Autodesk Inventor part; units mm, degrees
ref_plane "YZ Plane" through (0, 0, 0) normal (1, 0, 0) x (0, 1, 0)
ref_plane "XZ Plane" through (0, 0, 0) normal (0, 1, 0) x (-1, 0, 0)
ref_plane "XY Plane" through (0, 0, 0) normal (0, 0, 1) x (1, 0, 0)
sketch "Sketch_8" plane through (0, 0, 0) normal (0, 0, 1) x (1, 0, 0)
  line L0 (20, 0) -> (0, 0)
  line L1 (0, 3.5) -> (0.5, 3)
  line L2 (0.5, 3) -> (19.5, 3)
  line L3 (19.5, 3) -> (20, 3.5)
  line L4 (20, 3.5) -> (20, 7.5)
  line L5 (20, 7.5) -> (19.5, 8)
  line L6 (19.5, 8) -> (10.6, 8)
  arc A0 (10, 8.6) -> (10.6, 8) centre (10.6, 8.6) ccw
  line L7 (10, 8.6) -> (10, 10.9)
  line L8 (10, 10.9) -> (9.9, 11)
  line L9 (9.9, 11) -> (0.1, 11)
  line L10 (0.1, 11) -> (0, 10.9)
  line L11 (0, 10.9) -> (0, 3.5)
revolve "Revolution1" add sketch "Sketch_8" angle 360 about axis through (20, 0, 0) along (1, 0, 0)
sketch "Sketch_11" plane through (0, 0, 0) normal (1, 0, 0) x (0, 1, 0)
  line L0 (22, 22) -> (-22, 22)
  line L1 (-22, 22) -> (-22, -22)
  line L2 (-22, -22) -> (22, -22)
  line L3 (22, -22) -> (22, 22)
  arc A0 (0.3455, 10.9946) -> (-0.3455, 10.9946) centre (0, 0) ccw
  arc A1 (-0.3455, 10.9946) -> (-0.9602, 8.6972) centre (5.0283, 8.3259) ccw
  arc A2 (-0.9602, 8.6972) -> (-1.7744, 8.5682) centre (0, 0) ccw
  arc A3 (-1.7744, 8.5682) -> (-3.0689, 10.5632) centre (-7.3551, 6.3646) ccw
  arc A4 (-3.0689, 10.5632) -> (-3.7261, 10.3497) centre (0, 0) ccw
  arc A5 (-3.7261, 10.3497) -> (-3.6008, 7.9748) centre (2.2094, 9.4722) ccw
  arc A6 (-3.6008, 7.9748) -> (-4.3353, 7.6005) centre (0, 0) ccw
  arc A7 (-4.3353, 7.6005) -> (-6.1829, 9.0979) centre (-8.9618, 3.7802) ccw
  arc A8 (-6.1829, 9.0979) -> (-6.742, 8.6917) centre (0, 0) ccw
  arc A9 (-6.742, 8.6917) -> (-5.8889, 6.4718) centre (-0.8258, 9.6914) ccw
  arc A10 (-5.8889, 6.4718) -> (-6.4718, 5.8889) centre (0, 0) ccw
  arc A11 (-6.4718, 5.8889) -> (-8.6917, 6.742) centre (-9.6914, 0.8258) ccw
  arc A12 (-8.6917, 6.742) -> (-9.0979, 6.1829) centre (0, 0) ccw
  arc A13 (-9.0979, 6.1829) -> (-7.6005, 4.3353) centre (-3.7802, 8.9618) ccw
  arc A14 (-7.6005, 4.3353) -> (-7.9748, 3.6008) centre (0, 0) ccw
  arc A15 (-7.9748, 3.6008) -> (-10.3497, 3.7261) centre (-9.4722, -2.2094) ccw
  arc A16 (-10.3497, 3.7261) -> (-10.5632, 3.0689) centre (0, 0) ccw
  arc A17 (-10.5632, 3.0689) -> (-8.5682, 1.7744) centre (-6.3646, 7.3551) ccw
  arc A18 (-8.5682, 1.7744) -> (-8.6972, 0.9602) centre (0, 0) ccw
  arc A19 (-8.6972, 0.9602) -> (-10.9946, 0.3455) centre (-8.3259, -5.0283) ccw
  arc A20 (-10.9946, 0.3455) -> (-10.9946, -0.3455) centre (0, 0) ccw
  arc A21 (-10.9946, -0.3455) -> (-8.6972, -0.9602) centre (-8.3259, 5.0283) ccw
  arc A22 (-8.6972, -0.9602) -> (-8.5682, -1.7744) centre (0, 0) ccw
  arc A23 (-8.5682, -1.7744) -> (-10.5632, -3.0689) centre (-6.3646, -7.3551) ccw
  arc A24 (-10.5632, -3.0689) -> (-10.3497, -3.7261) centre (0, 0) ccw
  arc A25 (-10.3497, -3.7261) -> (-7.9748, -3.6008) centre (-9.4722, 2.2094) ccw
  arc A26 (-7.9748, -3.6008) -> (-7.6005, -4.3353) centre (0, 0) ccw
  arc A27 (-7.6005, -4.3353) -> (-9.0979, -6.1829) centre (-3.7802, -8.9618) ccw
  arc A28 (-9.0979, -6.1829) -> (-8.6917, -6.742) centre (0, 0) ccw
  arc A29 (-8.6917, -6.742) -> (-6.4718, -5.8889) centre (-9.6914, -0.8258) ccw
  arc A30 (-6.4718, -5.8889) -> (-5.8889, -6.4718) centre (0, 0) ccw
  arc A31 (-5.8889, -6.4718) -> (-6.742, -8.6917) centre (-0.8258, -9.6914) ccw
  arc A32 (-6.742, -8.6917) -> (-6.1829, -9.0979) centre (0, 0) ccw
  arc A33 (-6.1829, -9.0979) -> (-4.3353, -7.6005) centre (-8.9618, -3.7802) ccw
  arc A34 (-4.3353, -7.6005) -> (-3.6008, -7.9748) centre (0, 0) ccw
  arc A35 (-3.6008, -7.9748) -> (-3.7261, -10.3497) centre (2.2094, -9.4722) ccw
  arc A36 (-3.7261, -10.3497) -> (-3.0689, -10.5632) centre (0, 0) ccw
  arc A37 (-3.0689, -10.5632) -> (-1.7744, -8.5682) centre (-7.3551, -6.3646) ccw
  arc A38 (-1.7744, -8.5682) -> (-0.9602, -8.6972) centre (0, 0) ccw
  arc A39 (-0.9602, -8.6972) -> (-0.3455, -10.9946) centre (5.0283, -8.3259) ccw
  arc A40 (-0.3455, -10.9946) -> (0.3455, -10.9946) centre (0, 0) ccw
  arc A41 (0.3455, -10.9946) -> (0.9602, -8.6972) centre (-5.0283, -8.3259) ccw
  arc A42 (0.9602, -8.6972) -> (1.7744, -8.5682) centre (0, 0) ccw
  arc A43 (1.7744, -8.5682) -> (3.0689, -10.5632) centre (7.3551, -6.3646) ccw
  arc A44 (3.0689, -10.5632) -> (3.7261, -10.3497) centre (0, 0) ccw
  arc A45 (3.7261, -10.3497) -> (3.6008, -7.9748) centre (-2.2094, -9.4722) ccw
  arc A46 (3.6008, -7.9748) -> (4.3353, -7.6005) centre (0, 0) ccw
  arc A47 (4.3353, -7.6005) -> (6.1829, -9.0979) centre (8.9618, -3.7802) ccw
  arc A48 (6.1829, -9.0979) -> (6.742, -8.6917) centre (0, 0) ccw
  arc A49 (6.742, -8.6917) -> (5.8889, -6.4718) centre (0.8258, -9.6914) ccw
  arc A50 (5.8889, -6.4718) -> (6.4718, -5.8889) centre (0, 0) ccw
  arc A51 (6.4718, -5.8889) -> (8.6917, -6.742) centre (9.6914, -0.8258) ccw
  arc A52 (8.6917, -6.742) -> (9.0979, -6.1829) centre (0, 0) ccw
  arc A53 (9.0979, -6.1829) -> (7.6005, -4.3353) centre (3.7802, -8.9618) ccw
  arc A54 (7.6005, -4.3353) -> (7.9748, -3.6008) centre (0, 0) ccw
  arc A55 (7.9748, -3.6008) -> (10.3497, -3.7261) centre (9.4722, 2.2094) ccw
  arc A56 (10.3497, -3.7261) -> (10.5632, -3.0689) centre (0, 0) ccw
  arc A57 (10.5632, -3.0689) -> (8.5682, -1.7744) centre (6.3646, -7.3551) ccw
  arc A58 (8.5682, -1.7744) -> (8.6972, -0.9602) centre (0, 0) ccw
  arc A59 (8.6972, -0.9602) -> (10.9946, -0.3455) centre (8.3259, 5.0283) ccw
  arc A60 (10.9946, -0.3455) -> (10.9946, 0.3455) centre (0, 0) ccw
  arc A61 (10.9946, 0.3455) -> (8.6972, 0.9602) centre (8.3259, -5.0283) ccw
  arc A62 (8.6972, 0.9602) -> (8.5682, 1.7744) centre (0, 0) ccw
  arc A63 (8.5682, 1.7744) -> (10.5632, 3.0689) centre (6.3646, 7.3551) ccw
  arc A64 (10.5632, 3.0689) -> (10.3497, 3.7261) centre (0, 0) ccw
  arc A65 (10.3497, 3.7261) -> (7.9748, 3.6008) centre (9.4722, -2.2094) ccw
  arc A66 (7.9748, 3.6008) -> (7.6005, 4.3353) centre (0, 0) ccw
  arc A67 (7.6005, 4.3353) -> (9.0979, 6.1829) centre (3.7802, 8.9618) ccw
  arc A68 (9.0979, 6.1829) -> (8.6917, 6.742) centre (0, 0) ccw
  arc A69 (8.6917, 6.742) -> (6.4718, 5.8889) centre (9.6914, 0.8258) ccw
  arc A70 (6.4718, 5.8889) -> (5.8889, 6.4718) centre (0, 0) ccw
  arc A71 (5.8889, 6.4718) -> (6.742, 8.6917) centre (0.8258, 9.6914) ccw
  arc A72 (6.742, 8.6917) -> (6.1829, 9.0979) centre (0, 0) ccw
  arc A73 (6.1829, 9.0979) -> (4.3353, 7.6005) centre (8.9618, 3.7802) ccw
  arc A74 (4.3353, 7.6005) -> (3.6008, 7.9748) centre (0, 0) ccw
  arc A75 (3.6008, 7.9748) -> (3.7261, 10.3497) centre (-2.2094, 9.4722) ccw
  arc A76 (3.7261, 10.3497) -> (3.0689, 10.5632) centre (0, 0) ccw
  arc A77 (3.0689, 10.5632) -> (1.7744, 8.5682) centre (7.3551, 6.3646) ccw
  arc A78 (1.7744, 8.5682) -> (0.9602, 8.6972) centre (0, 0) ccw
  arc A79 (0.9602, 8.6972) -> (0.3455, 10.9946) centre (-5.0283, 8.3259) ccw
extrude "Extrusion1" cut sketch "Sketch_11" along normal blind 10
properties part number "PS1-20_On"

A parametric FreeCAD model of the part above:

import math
import FreeCAD as App
import Part
import Sketcher

doc = App.newDocument("Part")
body = doc.addObject("PartDesign::Body", "Body")

# Sketch on XY plane
sketch1 = body.newObject("Sketcher::SketchObject", "Sketch")
sketch1.AttachmentSupport = (doc.getObject("XY_Plane"), [""])
sketch1.MapMode = "FlatFace"
sketch1.addGeometry([
    Part.LineSegment(App.Vector(0, 10.9, 0), App.Vector(0, 3.5, 0)),  # 0
    Part.LineSegment(App.Vector(0, 3.5, 0), App.Vector(0.5, 3, 0)),  # 1
    Part.LineSegment(App.Vector(0.5, 3, 0), App.Vector(19.5, 3, 0)),  # 2
    Part.LineSegment(App.Vector(19.5, 3, 0), App.Vector(20, 3.5, 0)),  # 3
    Part.LineSegment(App.Vector(20, 3.5, 0), App.Vector(20, 7.5, 0)),  # 4
    Part.LineSegment(App.Vector(20, 7.5, 0), App.Vector(19.5, 8, 0)),  # 5
    Part.LineSegment(App.Vector(19.5, 8, 0), App.Vector(10.6, 8, 0)),  # 6
    Part.ArcOfCircle(Part.Circle(App.Vector(10.6, 8.6, 0), App.Vector(0, 0, 1), 0.6), math.radians(180), math.radians(270)),  # 7
    Part.LineSegment(App.Vector(10, 8.6, 0), App.Vector(10, 10.9, 0)),  # 8
    Part.LineSegment(App.Vector(10, 10.9, 0), App.Vector(9.9, 11, 0)),  # 9
    Part.LineSegment(App.Vector(9.9, 11, 0), App.Vector(0.1, 11, 0)),  # 10
    Part.LineSegment(App.Vector(0.1, 11, 0), App.Vector(0, 10.9, 0)),  # 11
], False)
sketch1.addConstraint([
    Sketcher.Constraint("Coincident", 0, 2, 1, 1),
    Sketcher.Constraint("Coincident", 1, 2, 2, 1),
    Sketcher.Constraint("Coincident", 2, 2, 3, 1),
    Sketcher.Constraint("Coincident", 3, 2, 4, 1),
    Sketcher.Constraint("Coincident", 4, 2, 5, 1),
    Sketcher.Constraint("Coincident", 5, 2, 6, 1),
    Sketcher.Constraint("Tangent", 6, 2, 7, 2),
    Sketcher.Constraint("Tangent", 7, 1, 8, 1),
    Sketcher.Constraint("Coincident", 8, 2, 9, 1),
    Sketcher.Constraint("Coincident", 9, 2, 10, 1),
    Sketcher.Constraint("Coincident", 10, 2, 11, 1),
    Sketcher.Constraint("Coincident", 11, 2, 0, 1),
    Sketcher.Constraint("Vertical", 0),
    Sketcher.Constraint("Horizontal", 2),
    Sketcher.Constraint("Vertical", 4),
    Sketcher.Constraint("Horizontal", 6),
    Sketcher.Constraint("Vertical", 8),
    Sketcher.Constraint("Horizontal", 10),
    Sketcher.Constraint("PointOnObject", 0, 2, -2),
    Sketcher.Constraint("Perpendicular", 1, 3),
    Sketcher.Constraint("Perpendicular", 3, 5),
    Sketcher.Constraint("Parallel", 5, 9),
    Sketcher.Constraint("Perpendicular", 9, 11),
    Sketcher.Constraint("Horizontal", 0, 2, 3, 2),
    Sketcher.Constraint("Horizontal", 8, 2, 11, 2),
    Sketcher.Constraint("Vertical", 2, 2, 5, 2),
    Sketcher.Constraint("Equal", 1, 3),
    Sketcher.Constraint("Radius", 7, 0.6),
    Sketcher.Constraint("DistanceX", 2, 1, 2, 2, 19.0),
    Sketcher.Constraint("DistanceY", 4, 1, 4, 2, 4.0),
    Sketcher.Constraint("DistanceX", 6, 2, 6, 1, 8.9),
    Sketcher.Constraint("DistanceX", 10, 2, 10, 1, 9.8),
    Sketcher.Constraint("DistanceY", 0, 2, 0, 1, 7.4),
    Sketcher.Constraint("DistanceY", 8, 1, 8, 2, 2.3),
    Sketcher.Constraint("DistanceY", -1, 1, 1, 2, 3.0),
])
revolution = body.newObject("PartDesign::Revolution", "Revolution")
revolution.Profile = sketch1
revolution.ReferenceAxis = (sketch1, ["H_Axis"])
revolution.Angle = 360

# Sketch on YZ plane
sketch2 = body.newObject("Sketcher::SketchObject", "Sketch001")
sketch2.AttachmentSupport = (doc.getObject("YZ_Plane"), [""])
sketch2.MapMode = "FlatFace"
sketch2.addGeometry([
    Part.LineSegment(App.Vector(22, -22, 0), App.Vector(22, 22, 0)),  # 0
    Part.LineSegment(App.Vector(22, 22, 0), App.Vector(-22, 22, 0)),  # 1
    Part.LineSegment(App.Vector(-22, 22, 0), App.Vector(-22, -22, 0)),  # 2
    Part.LineSegment(App.Vector(-22, -22, 0), App.Vector(22, -22, 0)),  # 3
    Part.ArcOfCircle(Part.Circle(App.Vector(0, 0, 0), App.Vector(0, 0, 1), 11.000027), math.radians(88.2001), math.radians(91.7999)),  # 4
    Part.ArcOfCircle(Part.Circle(App.Vector(-5.0283, 8.3259, 0), App.Vector(0, 0, 1), 6), math.radians(3.547921), math.radians(26.409601)),  # 5
    Part.ArcOfCircle(Part.Circle(App.Vector(-0.003362, -0.018408, 0), App.Vector(0, 0, 1), 8.76871), math.radians(78.302809), math.radians(83.691233)),  # 6
    Part.ArcOfCircle(Part.Circle(App.Vector(7.3551, 6.3646, 0), App.Vector(0, 0, 1), 5.999979), math.radians(135.59152), math.radians(158.452877)),  # 7
    Part.ArcOfCircle(Part.Circle(App.Vector(0.011451, 0.033446, 0), App.Vector(0, 0, 1), 10.964658), math.radians(70.197203), math.radians(73.808668)),  # 8
    Part.ArcOfCircle(Part.Circle(App.Vector(-2.2094, 9.4722, 0), App.Vector(0, 0, 1), 6.000053), math.radians(-14.451742), math.radians(8.409651)),  # 9
    Part.ArcOfCircle(Part.Circle(App.Vector(-0.009426, -0.01747, 0), App.Vector(0, 0, 1), 8.769841), math.radians(60.302763), math.radians(65.690603)),  # 10
    Part.ArcOfCircle(Part.Circle(App.Vector(8.960613, 3.782006, 0), App.Vector(0, 0, 1), 5.997868), math.radians(117.588412), math.radians(140.458135)),  # 11
    Part.ArcOfCircle(Part.Circle(App.Vector(0.004866, 0.00648, 0), App.Vector(0, 0, 1), 10.991907), math.radians(52.199228), math.radians(55.802104)),  # 12
    Part.ArcOfCircle(Part.Circle(App.Vector(0.8258, 9.6914, 0), App.Vector(0, 0, 1), 6.000067), math.radians(-32.452077), math.radians(-9.591052)),  # 13
    Part.ArcOfCircle(Part.Circle(App.Vector(0, 0, 0), App.Vector(0, 0, 1), 8.750048), math.radians(42.300073), math.radians(47.699927)),  # 14
    Part.ArcOfCircle(Part.Circle(App.Vector(9.6914, 0.8258, 0), App.Vector(0, 0, 1), 6.000069), math.radians(99.591052), math.radians(122.452077)),  # 15
    Part.ArcOfCircle(Part.Circle(App.Vector(-0.00664, -0.004666, 0), App.Vector(0, 0, 1), 11.008116), math.radians(34.20055), math.radians(37.798119)),  # 16
    Part.ArcOfCircle(Part.Circle(App.Vector(3.778664, 8.963322, 0), App.Vector(0, 0, 1), 6.002085), math.radians(-50.449991), math.radians(-27.596555)),  # 17
    Part.ArcOfCircle(Part.Circle(App.Vector(0.017814, 0.008554, 0), App.Vector(0, 0, 1), 8.730284), math.radians(24.297182), math.radians(29.709452)),  # 18
    Part.ArcOfCircle(Part.Circle(App.Vector(9.4722, -2.2094, 0), App.Vector(0, 0, 1), 6.000014), math.radians(81.590349), math.radians(104.451742)),  # 19
    Part.ArcOfCircle(Part.Circle(App.Vector(-0.034007, -0.010462, 0), App.Vector(0, 0, 1), 11.035546), math.radians(16.202935), math.radians(19.791194)),  # 20
    Part.ArcOfCircle(Part.Circle(App.Vector(6.3646, 7.3551, 0), App.Vector(0, 0, 1), 6.000005), math.radians(-68.452877), math.radians(-45.59152)),  # 21
    Part.ArcOfCircle(Part.Circle(App.Vector(0.018467, 0.00248, 0), App.Vector(0, 0, 1), 8.731417), math.radians(6.297251), math.radians(11.708706)),  # 22
    Part.ArcOfCircle(Part.Circle(App.Vector(8.3259, -5.0283, 0), App.Vector(0, 0, 1), 5.999974), math.radians(63.590399), math.radians(86.452079)),  # 23
    Part.ArcOfCircle(Part.Circle(App.Vector(0, 0, 0), App.Vector(0, 0, 1), 11.000027), math.radians(-1.7999), math.radians(1.7999)),  # 24
    Part.ArcOfCircle(Part.Circle(App.Vector(8.3259, 5.0283, 0), App.Vector(0, 0, 1), 6), math.radians(-86.452079), math.radians(-63.590399)),  # 25
    Part.ArcOfCircle(Part.Circle(App.Vector(-0.018408, 0.003362, 0), App.Vector(0, 0, 1), 8.76871), math.radians(-11.697191), math.radians(-6.308767)),  # 26
    Part.ArcOfCircle(Part.Circle(App.Vector(6.3646, -7.3551, 0), App.Vector(0, 0, 1), 5.999979), math.radians(45.59152), math.radians(68.452877)),  # 27
    Part.ArcOfCircle(Part.Circle(App.Vector(0.033446, -0.011451, 0), App.Vector(0, 0, 1), 10.964658), math.radians(-19.802797), math.radians(-16.191332)),  # 28
    Part.ArcOfCircle(Part.Circle(App.Vector(9.4722, 2.2094, 0), App.Vector(0, 0, 1), 6.000053), math.radians(-104.451742), math.radians(-81.590349)),  # 29
    Part.ArcOfCircle(Part.Circle(App.Vector(-0.01747, 0.009426, 0), App.Vector(0, 0, 1), 8.769841), math.radians(-29.697237), math.radians(-24.309397)),  # 30
    Part.ArcOfCircle(Part.Circle(App.Vector(3.782006, -8.960613, 0), App.Vector(0, 0, 1), 5.997868), math.radians(27.588412), math.radians(50.458135)),  # 31
    Part.ArcOfCircle(Part.Circle(App.Vector(0.00648, -0.004866, 0), App.Vector(0, 0, 1), 10.991907), math.radians(-37.800772), math.radians(-34.197896)),  # 32
    Part.ArcOfCircle(Part.Circle(App.Vector(9.6914, -0.8258, 0), App.Vector(0, 0, 1), 6.000067), math.radians(-122.452077), math.radians(-99.591052)),  # 33
    Part.ArcOfCircle(Part.Circle(App.Vector(0, 0, 0), App.Vector(0, 0, 1), 8.750048), math.radians(-47.699927), math.radians(-42.300073)),  # 34
    Part.ArcOfCircle(Part.Circle(App.Vector(0.8258, -9.6914, 0), App.Vector(0, 0, 1), 6.000069), math.radians(9.591052), math.radians(32.452077)),  # 35
    Part.ArcOfCircle(Part.Circle(App.Vector(-0.004666, 0.00664, 0), App.Vector(0, 0, 1), 11.008116), math.radians(-55.79945), math.radians(-52.201881)),  # 36
    Part.ArcOfCircle(Part.Circle(App.Vector(8.963322, -3.778664, 0), App.Vector(0, 0, 1), 6.002085), math.radians(-140.449991), math.radians(-117.596555)),  # 37
    Part.ArcOfCircle(Part.Circle(App.Vector(0.008554, -0.017814, 0), App.Vector(0, 0, 1), 8.730284), math.radians(-65.702818), math.radians(-60.290548)),  # 38
    Part.ArcOfCircle(Part.Circle(App.Vector(-2.2094, -9.4722, 0), App.Vector(0, 0, 1), 6.000014), math.radians(-8.409651), math.radians(14.451742)),  # 39
    Part.ArcOfCircle(Part.Circle(App.Vector(-0.010462, 0.034007, 0), App.Vector(0, 0, 1), 11.035546), math.radians(-73.797065), math.radians(-70.208806)),  # 40
    Part.ArcOfCircle(Part.Circle(App.Vector(7.3551, -6.3646, 0), App.Vector(0, 0, 1), 6.000005), math.radians(-158.452877), math.radians(-135.59152)),  # 41
    Part.ArcOfCircle(Part.Circle(App.Vector(0.00248, -0.018467, 0), App.Vector(0, 0, 1), 8.731417), math.radians(-83.702749), math.radians(-78.291294)),  # 42
    Part.ArcOfCircle(Part.Circle(App.Vector(-5.0283, -8.3259, 0), App.Vector(0, 0, 1), 5.999974), math.radians(-26.409601), math.radians(-3.547921)),  # 43
    Part.ArcOfCircle(Part.Circle(App.Vector(0, 0, 0), App.Vector(0, 0, 1), 11.000027), math.radians(-91.7999), math.radians(-88.2001)),  # 44
    Part.ArcOfCircle(Part.Circle(App.Vector(5.0283, -8.3259, 0), App.Vector(0, 0, 1), 6), math.radians(-176.452079), math.radians(-153.590399)),  # 45
    Part.ArcOfCircle(Part.Circle(App.Vector(0.003362, 0.018408, 0), App.Vector(0, 0, 1), 8.76871), math.radians(-101.697191), math.radians(-96.308767)),  # 46
    Part.ArcOfCircle(Part.Circle(App.Vector(-7.3551, -6.3646, 0), App.Vector(0, 0, 1), 5.999979), math.radians(-44.40848), math.radians(-21.547123)),  # 47
    Part.ArcOfCircle(Part.Circle(App.Vector(-0.011451, -0.033446, 0), App.Vector(0, 0, 1), 10.964658), math.radians(-109.802797), math.radians(-106.191332)),  # 48
    Part.ArcOfCircle(Part.Circle(App.Vector(2.2094, -9.4722, 0), App.Vector(0, 0, 1), 6.000053), math.radians(165.548258), math.radians(188.409651)),  # 49
    Part.ArcOfCircle(Part.Circle(App.Vector(0.009426, 0.01747, 0), App.Vector(0, 0, 1), 8.769841), math.radians(-119.697237), math.radians(-114.309397)),  # 50
    Part.ArcOfCircle(Part.Circle(App.Vector(-8.960613, -3.782006, 0), App.Vector(0, 0, 1), 5.997868), math.radians(-62.411588), math.radians(-39.541865)),  # 51
    Part.ArcOfCircle(Part.Circle(App.Vector(-0.004866, -0.00648, 0), App.Vector(0, 0, 1), 10.991907), math.radians(-127.800772), math.radians(-124.197896)),  # 52
    Part.ArcOfCircle(Part.Circle(App.Vector(-0.8258, -9.6914, 0), App.Vector(0, 0, 1), 6.000067), math.radians(147.547923), math.radians(170.408948)),  # 53
    Part.ArcOfCircle(Part.Circle(App.Vector(0, 0, 0), App.Vector(0, 0, 1), 8.750048), math.radians(-137.699927), math.radians(-132.300073)),  # 54
    Part.ArcOfCircle(Part.Circle(App.Vector(-9.6914, -0.8258, 0), App.Vector(0, 0, 1), 6.000069), math.radians(-80.408948), math.radians(-57.547923)),  # 55
    Part.ArcOfCircle(Part.Circle(App.Vector(0.00664, 0.004666, 0), App.Vector(0, 0, 1), 11.008116), math.radians(-145.79945), math.radians(-142.201881)),  # 56
    Part.ArcOfCircle(Part.Circle(App.Vector(-3.778664, -8.963322, 0), App.Vector(0, 0, 1), 6.002085), math.radians(129.550009), math.radians(152.403445)),  # 57
    Part.ArcOfCircle(Part.Circle(App.Vector(-0.017814, -0.008554, 0), App.Vector(0, 0, 1), 8.730284), math.radians(-155.702818), math.radians(-150.290548)),  # 58
    Part.ArcOfCircle(Part.Circle(App.Vector(-9.4722, 2.2094, 0), App.Vector(0, 0, 1), 6.000014), math.radians(-98.409651), math.radians(-75.548258)),  # 59
    Part.ArcOfCircle(Part.Circle(App.Vector(0.034007, 0.010462, 0), App.Vector(0, 0, 1), 11.035546), math.radians(-163.797065), math.radians(-160.208806)),  # 60
    Part.ArcOfCircle(Part.Circle(App.Vector(-6.3646, -7.3551, 0), App.Vector(0, 0, 1), 6.000005), math.radians(111.547123), math.radians(134.40848)),  # 61
    Part.ArcOfCircle(Part.Circle(App.Vector(-0.018467, -0.00248, 0), App.Vector(0, 0, 1), 8.731417), math.radians(-173.702749), math.radians(-168.291294)),  # 62
    Part.ArcOfCircle(Part.Circle(App.Vector(-8.3259, 5.0283, 0), App.Vector(0, 0, 1), 5.999974), math.radians(-116.409601), math.radians(-93.547921)),  # 63
    Part.ArcOfCircle(Part.Circle(App.Vector(0, 0, 0), App.Vector(0, 0, 1), 11.000027), math.radians(178.2001), math.radians(181.7999)),  # 64
    Part.ArcOfCircle(Part.Circle(App.Vector(-8.3259, -5.0283, 0), App.Vector(0, 0, 1), 6), math.radians(93.547921), math.radians(116.409601)),  # 65
    Part.ArcOfCircle(Part.Circle(App.Vector(0.018408, -0.003362, 0), App.Vector(0, 0, 1), 8.76871), math.radians(168.302809), math.radians(173.691233)),  # 66
    Part.ArcOfCircle(Part.Circle(App.Vector(-6.3646, 7.3551, 0), App.Vector(0, 0, 1), 5.999979), math.radians(-134.40848), math.radians(-111.547123)),  # 67
    Part.ArcOfCircle(Part.Circle(App.Vector(-0.033446, 0.011451, 0), App.Vector(0, 0, 1), 10.964658), math.radians(160.197203), math.radians(163.808668)),  # 68
    Part.ArcOfCircle(Part.Circle(App.Vector(-9.4722, -2.2094, 0), App.Vector(0, 0, 1), 6.000053), math.radians(75.548258), math.radians(98.409651)),  # 69
    Part.ArcOfCircle(Part.Circle(App.Vector(0.01747, -0.009426, 0), App.Vector(0, 0, 1), 8.769841), math.radians(150.302763), math.radians(155.690603)),  # 70
    Part.ArcOfCircle(Part.Circle(App.Vector(-3.782006, 8.960613, 0), App.Vector(0, 0, 1), 5.997868), math.radians(-152.411588), math.radians(-129.541865)),  # 71
    Part.ArcOfCircle(Part.Circle(App.Vector(-0.00648, 0.004866, 0), App.Vector(0, 0, 1), 10.991907), math.radians(142.199228), math.radians(145.802104)),  # 72
    Part.ArcOfCircle(Part.Circle(App.Vector(-9.6914, 0.8258, 0), App.Vector(0, 0, 1), 6.000067), math.radians(57.547923), math.radians(80.408948)),  # 73
    Part.ArcOfCircle(Part.Circle(App.Vector(0, 0, 0), App.Vector(0, 0, 1), 8.750048), math.radians(132.300073), math.radians(137.699927)),  # 74
    Part.ArcOfCircle(Part.Circle(App.Vector(-0.8258, 9.6914, 0), App.Vector(0, 0, 1), 6.000069), math.radians(-170.408948), math.radians(-147.547923)),  # 75
    Part.ArcOfCircle(Part.Circle(App.Vector(0.004666, -0.00664, 0), App.Vector(0, 0, 1), 11.008116), math.radians(124.20055), math.radians(127.798119)),  # 76
    Part.ArcOfCircle(Part.Circle(App.Vector(-8.963322, 3.778664, 0), App.Vector(0, 0, 1), 6.002085), math.radians(39.550009), math.radians(62.403445)),  # 77
    Part.ArcOfCircle(Part.Circle(App.Vector(-0.008554, 0.017814, 0), App.Vector(0, 0, 1), 8.730284), math.radians(114.297182), math.radians(119.709452)),  # 78
    Part.ArcOfCircle(Part.Circle(App.Vector(2.2094, 9.4722, 0), App.Vector(0, 0, 1), 6.000014), math.radians(171.590349), math.radians(194.451742)),  # 79
    Part.ArcOfCircle(Part.Circle(App.Vector(0.010462, -0.034007, 0), App.Vector(0, 0, 1), 11.035546), math.radians(106.202935), math.radians(109.791194)),  # 80
    Part.ArcOfCircle(Part.Circle(App.Vector(-7.3551, 6.3646, 0), App.Vector(0, 0, 1), 6.000005), math.radians(21.547123), math.radians(44.40848)),  # 81
    Part.ArcOfCircle(Part.Circle(App.Vector(-0.00248, 0.018467, 0), App.Vector(0, 0, 1), 8.731417), math.radians(96.297251), math.radians(101.708706)),  # 82
    Part.ArcOfCircle(Part.Circle(App.Vector(5.0283, 8.3259, 0), App.Vector(0, 0, 1), 5.999974), math.radians(153.590399), math.radians(176.452079)),  # 83
], False)
sketch2.addConstraint([
    Sketcher.Constraint("Coincident", 0, 2, 1, 1),
    Sketcher.Constraint("Coincident", 1, 2, 2, 1),
    Sketcher.Constraint("Coincident", 2, 2, 3, 1),
    Sketcher.Constraint("Coincident", 3, 2, 0, 1),
    Sketcher.Constraint("Coincident", 4, 1, 5, 2),
    Sketcher.Constraint("Coincident", 5, 1, 6, 2),
    Sketcher.Constraint("Coincident", 6, 1, 7, 2),
    Sketcher.Constraint("Coincident", 7, 1, 8, 2),
    Sketcher.Constraint("Coincident", 8, 1, 9, 2),
    Sketcher.Constraint("Coincident", 9, 1, 10, 2),
    Sketcher.Constraint("Coincident", 10, 1, 11, 2),
    Sketcher.Constraint("Coincident", 11, 1, 12, 2),
    Sketcher.Constraint("Coincident", 12, 1, 13, 2),
    Sketcher.Constraint("Coincident", 13, 1, 14, 2),
    Sketcher.Constraint("Coincident", 14, 1, 15, 2),
    Sketcher.Constraint("Coincident", 15, 1, 16, 2),
    Sketcher.Constraint("Coincident", 16, 1, 17, 2),
    Sketcher.Constraint("Coincident", 17, 1, 18, 2),
    Sketcher.Constraint("Coincident", 18, 1, 19, 2),
    Sketcher.Constraint("Coincident", 19, 1, 20, 2),
    Sketcher.Constraint("Coincident", 20, 1, 21, 2),
    Sketcher.Constraint("Coincident", 21, 1, 22, 2),
    Sketcher.Constraint("Coincident", 22, 1, 23, 2),
    Sketcher.Constraint("Coincident", 23, 1, 24, 2),
    Sketcher.Constraint("Coincident", 24, 1, 25, 2),
    Sketcher.Constraint("Coincident", 25, 1, 26, 2),
    Sketcher.Constraint("Coincident", 26, 1, 27, 2),
    Sketcher.Constraint("Coincident", 27, 1, 28, 2),
    Sketcher.Constraint("Coincident", 28, 1, 29, 2),
    Sketcher.Constraint("Coincident", 29, 1, 30, 2),
    Sketcher.Constraint("Coincident", 30, 1, 31, 2),
    Sketcher.Constraint("Coincident", 31, 1, 32, 2),
    Sketcher.Constraint("Coincident", 32, 1, 33, 2),
    Sketcher.Constraint("Coincident", 33, 1, 34, 2),
    Sketcher.Constraint("Coincident", 34, 1, 35, 2),
    Sketcher.Constraint("Coincident", 35, 1, 36, 2),
    Sketcher.Constraint("Coincident", 36, 1, 37, 2),
    Sketcher.Constraint("Coincident", 37, 1, 38, 2),
    Sketcher.Constraint("Coincident", 38, 1, 39, 2),
    Sketcher.Constraint("Coincident", 39, 1, 40, 2),
    Sketcher.Constraint("Coincident", 40, 1, 41, 2),
    Sketcher.Constraint("Coincident", 41, 1, 42, 2),
    Sketcher.Constraint("Coincident", 42, 1, 43, 2),
    Sketcher.Constraint("Coincident", 43, 1, 44, 2),
    Sketcher.Constraint("Coincident", 44, 1, 45, 2),
    Sketcher.Constraint("Coincident", 45, 1, 46, 2),
    Sketcher.Constraint("Coincident", 46, 1, 47, 2),
    Sketcher.Constraint("Coincident", 47, 1, 48, 2),
    Sketcher.Constraint("Coincident", 48, 1, 49, 2),
    Sketcher.Constraint("Coincident", 49, 1, 50, 2),
    Sketcher.Constraint("Coincident", 50, 1, 51, 2),
    Sketcher.Constraint("Coincident", 51, 1, 52, 2),
    Sketcher.Constraint("Coincident", 52, 1, 53, 2),
    Sketcher.Constraint("Coincident", 53, 1, 54, 2),
    Sketcher.Constraint("Coincident", 54, 1, 55, 2),
    Sketcher.Constraint("Coincident", 55, 1, 56, 2),
    Sketcher.Constraint("Coincident", 56, 1, 57, 2),
    Sketcher.Constraint("Coincident", 57, 1, 58, 2),
    Sketcher.Constraint("Coincident", 58, 1, 59, 2),
    Sketcher.Constraint("Coincident", 59, 1, 60, 2),
    Sketcher.Constraint("Coincident", 60, 1, 61, 2),
    Sketcher.Constraint("Coincident", 61, 1, 62, 2),
    Sketcher.Constraint("Coincident", 62, 1, 63, 2),
    Sketcher.Constraint("Coincident", 63, 1, 64, 2),
    Sketcher.Constraint("Coincident", 64, 1, 65, 2),
    Sketcher.Constraint("Coincident", 65, 1, 66, 2),
    Sketcher.Constraint("Coincident", 66, 1, 67, 2),
    Sketcher.Constraint("Coincident", 67, 1, 68, 2),
    Sketcher.Constraint("Coincident", 68, 1, 69, 2),
    Sketcher.Constraint("Coincident", 69, 1, 70, 2),
    Sketcher.Constraint("Coincident", 70, 1, 71, 2),
    Sketcher.Constraint("Coincident", 71, 1, 72, 2),
    Sketcher.Constraint("Coincident", 72, 1, 73, 2),
    Sketcher.Constraint("Coincident", 73, 1, 74, 2),
    Sketcher.Constraint("Coincident", 74, 1, 75, 2),
    Sketcher.Constraint("Coincident", 75, 1, 76, 2),
    Sketcher.Constraint("Coincident", 76, 1, 77, 2),
    Sketcher.Constraint("Coincident", 77, 1, 78, 2),
    Sketcher.Constraint("Coincident", 78, 1, 79, 2),
    Sketcher.Constraint("Coincident", 79, 1, 80, 2),
    Sketcher.Constraint("Coincident", 80, 1, 81, 2),
    Sketcher.Constraint("Coincident", 81, 1, 82, 2),
    Sketcher.Constraint("Coincident", 82, 1, 83, 2),
    Sketcher.Constraint("Coincident", 83, 1, 4, 2),
    Sketcher.Constraint("Vertical", 0),
    Sketcher.Constraint("Horizontal", 1),
    Sketcher.Constraint("Vertical", 2),
    Sketcher.Constraint("Horizontal", 3),
    Sketcher.Constraint("Coincident", 4, 3, -1, 1),
    Sketcher.Constraint("Coincident", 14, 3, -1, 1),
    Sketcher.Constraint("Coincident", 24, 3, -1, 1),
    Sketcher.Constraint("Coincident", 34, 3, -1, 1),
    Sketcher.Constraint("Coincident", 44, 3, -1, 1),
    Sketcher.Constraint("Coincident", 54, 3, -1, 1),
    Sketcher.Constraint("Coincident", 64, 3, -1, 1),
    Sketcher.Constraint("Coincident", 74, 3, -1, 1),
    Sketcher.Constraint("Equal", 5, 7),
    Sketcher.Constraint("Equal", 7, 9),
    Sketcher.Constraint("Equal", 9, 13),
    Sketcher.Constraint("Equal", 13, 15),
    Sketcher.Constraint("Equal", 15, 19),
    Sketcher.Constraint("Equal", 19, 21),
    Sketcher.Constraint("Equal", 21, 23),
    Sketcher.Constraint("Equal", 4, 24),
    Sketcher.Constraint("Equal", 23, 25),
    Sketcher.Constraint("Equal", 6, 26),
    Sketcher.Constraint("Equal", 25, 27),
    Sketcher.Constraint("Equal", 8, 28),
    Sketcher.Constraint("Equal", 27, 29),
    Sketcher.Constraint("Equal", 10, 30),
    Sketcher.Constraint("Equal", 11, 31),
    Sketcher.Constraint("Equal", 12, 32),
    Sketcher.Constraint("Equal", 29, 33),
    Sketcher.Constraint("Equal", 14, 34),
    Sketcher.Constraint("Equal", 33, 35),
    Sketcher.Constraint("Equal", 16, 36),
    Sketcher.Constraint("Equal", 17, 37),
    Sketcher.Constraint("Equal", 18, 38),
    Sketcher.Constraint("Equal", 35, 39),
    Sketcher.Constraint("Equal", 20, 40),
    Sketcher.Constraint("Equal", 39, 41),
    Sketcher.Constraint("Equal", 22, 42),
    Sketcher.Constraint("Equal", 41, 43),
    Sketcher.Constraint("Equal", 24, 44),
    Sketcher.Constraint("Equal", 43, 45),
    Sketcher.Constraint("Equal", 26, 46),
    Sketcher.Constraint("Equal", 45, 47),
    Sketcher.Constraint("Equal", 28, 48),
    Sketcher.Constraint("Equal", 47, 49),
    Sketcher.Constraint("Equal", 30, 50),
    Sketcher.Constraint("Equal", 31, 51),
    Sketcher.Constraint("Equal", 32, 52),
    Sketcher.Constraint("Equal", 49, 53),
    Sketcher.Constraint("Equal", 34, 54),
    Sketcher.Constraint("Equal", 53, 55),
    Sketcher.Constraint("Equal", 36, 56),
    Sketcher.Constraint("Equal", 37, 57),
    Sketcher.Constraint("Equal", 38, 58),
    Sketcher.Constraint("Equal", 55, 59),
    Sketcher.Constraint("Equal", 40, 60),
    Sketcher.Constraint("Equal", 59, 61),
    Sketcher.Constraint("Equal", 42, 62),
    Sketcher.Constraint("Equal", 61, 63),
    Sketcher.Constraint("Equal", 44, 64),
    Sketcher.Constraint("Equal", 63, 65),
    Sketcher.Constraint("Equal", 46, 66),
    Sketcher.Constraint("Equal", 65, 67),
    Sketcher.Constraint("Equal", 48, 68),
    Sketcher.Constraint("Equal", 67, 69),
    Sketcher.Constraint("Equal", 50, 70),
    Sketcher.Constraint("Equal", 51, 71),
    Sketcher.Constraint("Equal", 52, 72),
    Sketcher.Constraint("Equal", 69, 73),
    Sketcher.Constraint("Equal", 54, 74),
    Sketcher.Constraint("Equal", 73, 75),
    Sketcher.Constraint("Equal", 56, 76),
    Sketcher.Constraint("Equal", 57, 77),
    Sketcher.Constraint("Equal", 58, 78),
    Sketcher.Constraint("Equal", 75, 79),
    Sketcher.Constraint("Equal", 60, 80),
    Sketcher.Constraint("Equal", 79, 81),
    Sketcher.Constraint("Equal", 62, 82),
    Sketcher.Constraint("Equal", 81, 83),
    Sketcher.Constraint("Symmetric", 5, 3, 45, 3, -1, 1),
    Sketcher.Constraint("Symmetric", 6, 3, 46, 3, -1, 1),
    Sketcher.Constraint("Symmetric", 7, 3, 47, 3, -1, 1),
    Sketcher.Constraint("Symmetric", 8, 3, 48, 3, -1, 1),
    Sketcher.Constraint("Symmetric", 9, 3, 49, 3, -1, 1),
    Sketcher.Constraint("Symmetric", 10, 3, 50, 3, -1, 1),
    Sketcher.Constraint("Symmetric", 11, 3, 51, 3, -1, 1),
    Sketcher.Constraint("Symmetric", 12, 3, 52, 3, -1, 1),
    Sketcher.Constraint("Symmetric", 13, 3, 53, 3, -1, 1),
    Sketcher.Constraint("Symmetric", 15, 3, 55, 3, -1, 1),
    Sketcher.Constraint("Symmetric", 16, 3, 56, 3, -1, 1),
    Sketcher.Constraint("Symmetric", 17, 3, 57, 3, -1, 1),
    Sketcher.Constraint("Symmetric", 18, 3, 58, 3, -1, 1),
    Sketcher.Constraint("Symmetric", 19, 3, 59, 3, -1, 1),
    Sketcher.Constraint("Symmetric", 20, 3, 60, 3, -1, 1),
    Sketcher.Constraint("Symmetric", 21, 3, 61, 3, -1, 1),
    Sketcher.Constraint("Symmetric", 22, 3, 62, 3, -1, 1),
    Sketcher.Constraint("Symmetric", 23, 3, 63, 3, -1, 1),
    Sketcher.Constraint("Symmetric", 25, 3, 65, 3, -1, 1),
    Sketcher.Constraint("Symmetric", 26, 3, 66, 3, -1, 1),
    Sketcher.Constraint("Symmetric", 27, 3, 67, 3, -1, 1),
    Sketcher.Constraint("Symmetric", 28, 3, 68, 3, -1, 1),
    Sketcher.Constraint("Symmetric", 29, 3, 69, 3, -1, 1),
    Sketcher.Constraint("Symmetric", 30, 3, 70, 3, -1, 1),
    Sketcher.Constraint("Symmetric", 31, 3, 71, 3, -1, 1),
    Sketcher.Constraint("Symmetric", 32, 3, 72, 3, -1, 1),
    Sketcher.Constraint("Symmetric", 33, 3, 73, 3, -1, 1),
    Sketcher.Constraint("Symmetric", 35, 3, 75, 3, -1, 1),
    Sketcher.Constraint("Symmetric", 36, 3, 76, 3, -1, 1),
    Sketcher.Constraint("Symmetric", 37, 3, 77, 3, -1, 1),
    Sketcher.Constraint("Symmetric", 38, 3, 78, 3, -1, 1),
    Sketcher.Constraint("Symmetric", 39, 3, 79, 3, -1, 1),
    Sketcher.Constraint("Symmetric", 40, 3, 80, 3, -1, 1),
    Sketcher.Constraint("Symmetric", 41, 3, 81, 3, -1, 1),
    Sketcher.Constraint("Symmetric", 42, 3, 82, 3, -1, 1),
    Sketcher.Constraint("Symmetric", 43, 3, 83, 3, -1, 1),
    Sketcher.Constraint("Symmetric", 0, 2, 2, 2, -1, 1),
    Sketcher.Constraint("Symmetric", 16, 3, 32, 3, -2),
    Sketcher.Constraint("Symmetric", 12, 3, 36, 3, -2),
    Sketcher.Constraint("Symmetric", 43, 3, 45, 3, -2),
    Sketcher.Constraint("Symmetric", 41, 3, 47, 3, -2),
    Sketcher.Constraint("Symmetric", 39, 3, 49, 3, -2),
    Sketcher.Constraint("Symmetric", 35, 3, 53, 3, -2),
    Sketcher.Constraint("Symmetric", 33, 3, 55, 3, -2),
    Sketcher.Constraint("Symmetric", 29, 3, 59, 3, -2),
    Sketcher.Constraint("Symmetric", 27, 3, 61, 3, -2),
    Sketcher.Constraint("Symmetric", 25, 3, 63, 3, -2),
    Sketcher.Constraint("Symmetric", 37, 1, 50, 1, -2),
    Sketcher.Constraint("Symmetric", 36, 1, 51, 1, -2),
    Sketcher.Constraint("Symmetric", 31, 1, 56, 1, -2),
    Sketcher.Constraint("Symmetric", 30, 1, 57, 1, -2),
    Sketcher.Constraint("Horizontal", 6, 3, 42, 3),
    Sketcher.Constraint("Horizontal", 42, 1, 45, 1),
    Sketcher.Constraint("Horizontal", 41, 1, 46, 1),
    Sketcher.Constraint("Horizontal", 40, 1, 47, 1),
    Sketcher.Constraint("Horizontal", 39, 1, 48, 1),
    Sketcher.Constraint("Horizontal", 38, 1, 49, 1),
    Sketcher.Constraint("Horizontal", 35, 1, 52, 1),
    Sketcher.Constraint("Horizontal", 29, 1, 58, 1),
    Sketcher.Constraint("Horizontal", 28, 1, 59, 1),
    Sketcher.Constraint("Horizontal", 27, 1, 60, 1),
    Sketcher.Constraint("Horizontal", 26, 1, 61, 1),
    Sketcher.Constraint("Vertical", 26, 3, 62, 3),
    Sketcher.Constraint("Vertical", 22, 1, 25, 1),
    Sketcher.Constraint("Vertical", 15, 1, 32, 1),
    Sketcher.Constraint("Equal", 3, 0),
    Sketcher.Constraint("Radius", 4, 11.0),
    Sketcher.Constraint("Radius", 5, 6.0),
    Sketcher.Constraint("DistanceX", 1, 2, 1, 1, 44.0),
    Sketcher.Constraint("Radius", 14, 8.75),
    Sketcher.Constraint("Radius", 12, 10.992),
    Sketcher.Constraint("Radius", 16, 11.008),
    Sketcher.Constraint("Radius", 17, 6.002),
    Sketcher.Constraint("Radius", 6, 8.7687),
    Sketcher.Constraint("Radius", 8, 10.9647),
    Sketcher.Constraint("Radius", 10, 8.7698),
    Sketcher.Constraint("Radius", 11, 5.9979),
    Sketcher.Constraint("Radius", 18, 8.7303),
    Sketcher.Constraint("Radius", 20, 11.0355),
    Sketcher.Constraint("Radius", 22, 8.7314),
    Sketcher.Constraint("DistanceY", -1, 1, 5, 3, 8.326),
    Sketcher.Constraint("DistanceX", -1, 1, 7, 3, 7.355),
    Sketcher.Constraint("DistanceY", -1, 1, 11, 3, 3.782),
    Sketcher.Constraint("DistanceX", 20, 3, -1, 1, 0.034),
    Sketcher.Constraint("DistanceY", -1, 1, 21, 3, 7.355),
    Sketcher.Constraint("DistanceX", -1, 1, 23, 3, 8.326),
    Sketcher.Constraint("DistanceX", -1, 1, 31, 3, 3.782),
    Sketcher.Constraint("DistanceY", -1, 1, 40, 3, 0.034),
    Sketcher.Constraint("DistanceX", -1, 1, 7, 1, 3.069),
    Sketcher.Constraint("DistanceX", -1, 1, 8, 1, 3.726),
    Sketcher.Constraint("DistanceX", -1, 1, 11, 1, 6.183),
    Sketcher.Constraint("DistanceX", -1, 1, 12, 1, 6.742),
    Sketcher.Constraint("DistanceX", -1, 1, 13, 1, 5.889),
    Sketcher.Constraint("DistanceY", -1, 1, 14, 1, 5.889),
    Sketcher.Constraint("DistanceY", -1, 1, 15, 1, 6.742),
    Sketcher.Constraint("DistanceX", -1, 1, 16, 1, 9.098),
    Sketcher.Constraint("DistanceY", -1, 1, 19, 1, 3.726),
    Sketcher.Constraint("DistanceY", -1, 1, 20, 1, 3.069),
    Sketcher.Constraint("DistanceX", 5, 3, -1, 1, 5.0283),
    Sketcher.Constraint("DistanceX", 6, 3, -1, 1, 0.0034),
    Sketcher.Constraint("DistanceY", -1, 1, 7, 3, 6.3646),
    Sketcher.Constraint("DistanceX", 9, 3, -1, 1, 2.2094),
    Sketcher.Constraint("DistanceX", 10, 3, -1, 1, 0.0094),
    Sketcher.Constraint("DistanceY", 10, 3, -1, 1, 0.0175),
    Sketcher.Constraint("DistanceX", -1, 1, 18, 3, 0.0178),
    Sketcher.Constraint("DistanceY", -1, 1, 18, 3, 0.0086),
    Sketcher.Constraint("DistanceX", -1, 1, 19, 3, 9.4722),
    Sketcher.Constraint("DistanceY", 19, 3, -1, 1, 2.2094),
    Sketcher.Constraint("DistanceY", -1, 1, 22, 3, 0.0025),
    Sketcher.Constraint("DistanceY", 23, 3, -1, 1, 5.0283),
])
pocket1 = body.newObject("PartDesign::Pocket", "Pocket")
pocket1.Profile = sketch2
pocket1.Length = 10
pocket1.Reversed = True

doc.recompute()
